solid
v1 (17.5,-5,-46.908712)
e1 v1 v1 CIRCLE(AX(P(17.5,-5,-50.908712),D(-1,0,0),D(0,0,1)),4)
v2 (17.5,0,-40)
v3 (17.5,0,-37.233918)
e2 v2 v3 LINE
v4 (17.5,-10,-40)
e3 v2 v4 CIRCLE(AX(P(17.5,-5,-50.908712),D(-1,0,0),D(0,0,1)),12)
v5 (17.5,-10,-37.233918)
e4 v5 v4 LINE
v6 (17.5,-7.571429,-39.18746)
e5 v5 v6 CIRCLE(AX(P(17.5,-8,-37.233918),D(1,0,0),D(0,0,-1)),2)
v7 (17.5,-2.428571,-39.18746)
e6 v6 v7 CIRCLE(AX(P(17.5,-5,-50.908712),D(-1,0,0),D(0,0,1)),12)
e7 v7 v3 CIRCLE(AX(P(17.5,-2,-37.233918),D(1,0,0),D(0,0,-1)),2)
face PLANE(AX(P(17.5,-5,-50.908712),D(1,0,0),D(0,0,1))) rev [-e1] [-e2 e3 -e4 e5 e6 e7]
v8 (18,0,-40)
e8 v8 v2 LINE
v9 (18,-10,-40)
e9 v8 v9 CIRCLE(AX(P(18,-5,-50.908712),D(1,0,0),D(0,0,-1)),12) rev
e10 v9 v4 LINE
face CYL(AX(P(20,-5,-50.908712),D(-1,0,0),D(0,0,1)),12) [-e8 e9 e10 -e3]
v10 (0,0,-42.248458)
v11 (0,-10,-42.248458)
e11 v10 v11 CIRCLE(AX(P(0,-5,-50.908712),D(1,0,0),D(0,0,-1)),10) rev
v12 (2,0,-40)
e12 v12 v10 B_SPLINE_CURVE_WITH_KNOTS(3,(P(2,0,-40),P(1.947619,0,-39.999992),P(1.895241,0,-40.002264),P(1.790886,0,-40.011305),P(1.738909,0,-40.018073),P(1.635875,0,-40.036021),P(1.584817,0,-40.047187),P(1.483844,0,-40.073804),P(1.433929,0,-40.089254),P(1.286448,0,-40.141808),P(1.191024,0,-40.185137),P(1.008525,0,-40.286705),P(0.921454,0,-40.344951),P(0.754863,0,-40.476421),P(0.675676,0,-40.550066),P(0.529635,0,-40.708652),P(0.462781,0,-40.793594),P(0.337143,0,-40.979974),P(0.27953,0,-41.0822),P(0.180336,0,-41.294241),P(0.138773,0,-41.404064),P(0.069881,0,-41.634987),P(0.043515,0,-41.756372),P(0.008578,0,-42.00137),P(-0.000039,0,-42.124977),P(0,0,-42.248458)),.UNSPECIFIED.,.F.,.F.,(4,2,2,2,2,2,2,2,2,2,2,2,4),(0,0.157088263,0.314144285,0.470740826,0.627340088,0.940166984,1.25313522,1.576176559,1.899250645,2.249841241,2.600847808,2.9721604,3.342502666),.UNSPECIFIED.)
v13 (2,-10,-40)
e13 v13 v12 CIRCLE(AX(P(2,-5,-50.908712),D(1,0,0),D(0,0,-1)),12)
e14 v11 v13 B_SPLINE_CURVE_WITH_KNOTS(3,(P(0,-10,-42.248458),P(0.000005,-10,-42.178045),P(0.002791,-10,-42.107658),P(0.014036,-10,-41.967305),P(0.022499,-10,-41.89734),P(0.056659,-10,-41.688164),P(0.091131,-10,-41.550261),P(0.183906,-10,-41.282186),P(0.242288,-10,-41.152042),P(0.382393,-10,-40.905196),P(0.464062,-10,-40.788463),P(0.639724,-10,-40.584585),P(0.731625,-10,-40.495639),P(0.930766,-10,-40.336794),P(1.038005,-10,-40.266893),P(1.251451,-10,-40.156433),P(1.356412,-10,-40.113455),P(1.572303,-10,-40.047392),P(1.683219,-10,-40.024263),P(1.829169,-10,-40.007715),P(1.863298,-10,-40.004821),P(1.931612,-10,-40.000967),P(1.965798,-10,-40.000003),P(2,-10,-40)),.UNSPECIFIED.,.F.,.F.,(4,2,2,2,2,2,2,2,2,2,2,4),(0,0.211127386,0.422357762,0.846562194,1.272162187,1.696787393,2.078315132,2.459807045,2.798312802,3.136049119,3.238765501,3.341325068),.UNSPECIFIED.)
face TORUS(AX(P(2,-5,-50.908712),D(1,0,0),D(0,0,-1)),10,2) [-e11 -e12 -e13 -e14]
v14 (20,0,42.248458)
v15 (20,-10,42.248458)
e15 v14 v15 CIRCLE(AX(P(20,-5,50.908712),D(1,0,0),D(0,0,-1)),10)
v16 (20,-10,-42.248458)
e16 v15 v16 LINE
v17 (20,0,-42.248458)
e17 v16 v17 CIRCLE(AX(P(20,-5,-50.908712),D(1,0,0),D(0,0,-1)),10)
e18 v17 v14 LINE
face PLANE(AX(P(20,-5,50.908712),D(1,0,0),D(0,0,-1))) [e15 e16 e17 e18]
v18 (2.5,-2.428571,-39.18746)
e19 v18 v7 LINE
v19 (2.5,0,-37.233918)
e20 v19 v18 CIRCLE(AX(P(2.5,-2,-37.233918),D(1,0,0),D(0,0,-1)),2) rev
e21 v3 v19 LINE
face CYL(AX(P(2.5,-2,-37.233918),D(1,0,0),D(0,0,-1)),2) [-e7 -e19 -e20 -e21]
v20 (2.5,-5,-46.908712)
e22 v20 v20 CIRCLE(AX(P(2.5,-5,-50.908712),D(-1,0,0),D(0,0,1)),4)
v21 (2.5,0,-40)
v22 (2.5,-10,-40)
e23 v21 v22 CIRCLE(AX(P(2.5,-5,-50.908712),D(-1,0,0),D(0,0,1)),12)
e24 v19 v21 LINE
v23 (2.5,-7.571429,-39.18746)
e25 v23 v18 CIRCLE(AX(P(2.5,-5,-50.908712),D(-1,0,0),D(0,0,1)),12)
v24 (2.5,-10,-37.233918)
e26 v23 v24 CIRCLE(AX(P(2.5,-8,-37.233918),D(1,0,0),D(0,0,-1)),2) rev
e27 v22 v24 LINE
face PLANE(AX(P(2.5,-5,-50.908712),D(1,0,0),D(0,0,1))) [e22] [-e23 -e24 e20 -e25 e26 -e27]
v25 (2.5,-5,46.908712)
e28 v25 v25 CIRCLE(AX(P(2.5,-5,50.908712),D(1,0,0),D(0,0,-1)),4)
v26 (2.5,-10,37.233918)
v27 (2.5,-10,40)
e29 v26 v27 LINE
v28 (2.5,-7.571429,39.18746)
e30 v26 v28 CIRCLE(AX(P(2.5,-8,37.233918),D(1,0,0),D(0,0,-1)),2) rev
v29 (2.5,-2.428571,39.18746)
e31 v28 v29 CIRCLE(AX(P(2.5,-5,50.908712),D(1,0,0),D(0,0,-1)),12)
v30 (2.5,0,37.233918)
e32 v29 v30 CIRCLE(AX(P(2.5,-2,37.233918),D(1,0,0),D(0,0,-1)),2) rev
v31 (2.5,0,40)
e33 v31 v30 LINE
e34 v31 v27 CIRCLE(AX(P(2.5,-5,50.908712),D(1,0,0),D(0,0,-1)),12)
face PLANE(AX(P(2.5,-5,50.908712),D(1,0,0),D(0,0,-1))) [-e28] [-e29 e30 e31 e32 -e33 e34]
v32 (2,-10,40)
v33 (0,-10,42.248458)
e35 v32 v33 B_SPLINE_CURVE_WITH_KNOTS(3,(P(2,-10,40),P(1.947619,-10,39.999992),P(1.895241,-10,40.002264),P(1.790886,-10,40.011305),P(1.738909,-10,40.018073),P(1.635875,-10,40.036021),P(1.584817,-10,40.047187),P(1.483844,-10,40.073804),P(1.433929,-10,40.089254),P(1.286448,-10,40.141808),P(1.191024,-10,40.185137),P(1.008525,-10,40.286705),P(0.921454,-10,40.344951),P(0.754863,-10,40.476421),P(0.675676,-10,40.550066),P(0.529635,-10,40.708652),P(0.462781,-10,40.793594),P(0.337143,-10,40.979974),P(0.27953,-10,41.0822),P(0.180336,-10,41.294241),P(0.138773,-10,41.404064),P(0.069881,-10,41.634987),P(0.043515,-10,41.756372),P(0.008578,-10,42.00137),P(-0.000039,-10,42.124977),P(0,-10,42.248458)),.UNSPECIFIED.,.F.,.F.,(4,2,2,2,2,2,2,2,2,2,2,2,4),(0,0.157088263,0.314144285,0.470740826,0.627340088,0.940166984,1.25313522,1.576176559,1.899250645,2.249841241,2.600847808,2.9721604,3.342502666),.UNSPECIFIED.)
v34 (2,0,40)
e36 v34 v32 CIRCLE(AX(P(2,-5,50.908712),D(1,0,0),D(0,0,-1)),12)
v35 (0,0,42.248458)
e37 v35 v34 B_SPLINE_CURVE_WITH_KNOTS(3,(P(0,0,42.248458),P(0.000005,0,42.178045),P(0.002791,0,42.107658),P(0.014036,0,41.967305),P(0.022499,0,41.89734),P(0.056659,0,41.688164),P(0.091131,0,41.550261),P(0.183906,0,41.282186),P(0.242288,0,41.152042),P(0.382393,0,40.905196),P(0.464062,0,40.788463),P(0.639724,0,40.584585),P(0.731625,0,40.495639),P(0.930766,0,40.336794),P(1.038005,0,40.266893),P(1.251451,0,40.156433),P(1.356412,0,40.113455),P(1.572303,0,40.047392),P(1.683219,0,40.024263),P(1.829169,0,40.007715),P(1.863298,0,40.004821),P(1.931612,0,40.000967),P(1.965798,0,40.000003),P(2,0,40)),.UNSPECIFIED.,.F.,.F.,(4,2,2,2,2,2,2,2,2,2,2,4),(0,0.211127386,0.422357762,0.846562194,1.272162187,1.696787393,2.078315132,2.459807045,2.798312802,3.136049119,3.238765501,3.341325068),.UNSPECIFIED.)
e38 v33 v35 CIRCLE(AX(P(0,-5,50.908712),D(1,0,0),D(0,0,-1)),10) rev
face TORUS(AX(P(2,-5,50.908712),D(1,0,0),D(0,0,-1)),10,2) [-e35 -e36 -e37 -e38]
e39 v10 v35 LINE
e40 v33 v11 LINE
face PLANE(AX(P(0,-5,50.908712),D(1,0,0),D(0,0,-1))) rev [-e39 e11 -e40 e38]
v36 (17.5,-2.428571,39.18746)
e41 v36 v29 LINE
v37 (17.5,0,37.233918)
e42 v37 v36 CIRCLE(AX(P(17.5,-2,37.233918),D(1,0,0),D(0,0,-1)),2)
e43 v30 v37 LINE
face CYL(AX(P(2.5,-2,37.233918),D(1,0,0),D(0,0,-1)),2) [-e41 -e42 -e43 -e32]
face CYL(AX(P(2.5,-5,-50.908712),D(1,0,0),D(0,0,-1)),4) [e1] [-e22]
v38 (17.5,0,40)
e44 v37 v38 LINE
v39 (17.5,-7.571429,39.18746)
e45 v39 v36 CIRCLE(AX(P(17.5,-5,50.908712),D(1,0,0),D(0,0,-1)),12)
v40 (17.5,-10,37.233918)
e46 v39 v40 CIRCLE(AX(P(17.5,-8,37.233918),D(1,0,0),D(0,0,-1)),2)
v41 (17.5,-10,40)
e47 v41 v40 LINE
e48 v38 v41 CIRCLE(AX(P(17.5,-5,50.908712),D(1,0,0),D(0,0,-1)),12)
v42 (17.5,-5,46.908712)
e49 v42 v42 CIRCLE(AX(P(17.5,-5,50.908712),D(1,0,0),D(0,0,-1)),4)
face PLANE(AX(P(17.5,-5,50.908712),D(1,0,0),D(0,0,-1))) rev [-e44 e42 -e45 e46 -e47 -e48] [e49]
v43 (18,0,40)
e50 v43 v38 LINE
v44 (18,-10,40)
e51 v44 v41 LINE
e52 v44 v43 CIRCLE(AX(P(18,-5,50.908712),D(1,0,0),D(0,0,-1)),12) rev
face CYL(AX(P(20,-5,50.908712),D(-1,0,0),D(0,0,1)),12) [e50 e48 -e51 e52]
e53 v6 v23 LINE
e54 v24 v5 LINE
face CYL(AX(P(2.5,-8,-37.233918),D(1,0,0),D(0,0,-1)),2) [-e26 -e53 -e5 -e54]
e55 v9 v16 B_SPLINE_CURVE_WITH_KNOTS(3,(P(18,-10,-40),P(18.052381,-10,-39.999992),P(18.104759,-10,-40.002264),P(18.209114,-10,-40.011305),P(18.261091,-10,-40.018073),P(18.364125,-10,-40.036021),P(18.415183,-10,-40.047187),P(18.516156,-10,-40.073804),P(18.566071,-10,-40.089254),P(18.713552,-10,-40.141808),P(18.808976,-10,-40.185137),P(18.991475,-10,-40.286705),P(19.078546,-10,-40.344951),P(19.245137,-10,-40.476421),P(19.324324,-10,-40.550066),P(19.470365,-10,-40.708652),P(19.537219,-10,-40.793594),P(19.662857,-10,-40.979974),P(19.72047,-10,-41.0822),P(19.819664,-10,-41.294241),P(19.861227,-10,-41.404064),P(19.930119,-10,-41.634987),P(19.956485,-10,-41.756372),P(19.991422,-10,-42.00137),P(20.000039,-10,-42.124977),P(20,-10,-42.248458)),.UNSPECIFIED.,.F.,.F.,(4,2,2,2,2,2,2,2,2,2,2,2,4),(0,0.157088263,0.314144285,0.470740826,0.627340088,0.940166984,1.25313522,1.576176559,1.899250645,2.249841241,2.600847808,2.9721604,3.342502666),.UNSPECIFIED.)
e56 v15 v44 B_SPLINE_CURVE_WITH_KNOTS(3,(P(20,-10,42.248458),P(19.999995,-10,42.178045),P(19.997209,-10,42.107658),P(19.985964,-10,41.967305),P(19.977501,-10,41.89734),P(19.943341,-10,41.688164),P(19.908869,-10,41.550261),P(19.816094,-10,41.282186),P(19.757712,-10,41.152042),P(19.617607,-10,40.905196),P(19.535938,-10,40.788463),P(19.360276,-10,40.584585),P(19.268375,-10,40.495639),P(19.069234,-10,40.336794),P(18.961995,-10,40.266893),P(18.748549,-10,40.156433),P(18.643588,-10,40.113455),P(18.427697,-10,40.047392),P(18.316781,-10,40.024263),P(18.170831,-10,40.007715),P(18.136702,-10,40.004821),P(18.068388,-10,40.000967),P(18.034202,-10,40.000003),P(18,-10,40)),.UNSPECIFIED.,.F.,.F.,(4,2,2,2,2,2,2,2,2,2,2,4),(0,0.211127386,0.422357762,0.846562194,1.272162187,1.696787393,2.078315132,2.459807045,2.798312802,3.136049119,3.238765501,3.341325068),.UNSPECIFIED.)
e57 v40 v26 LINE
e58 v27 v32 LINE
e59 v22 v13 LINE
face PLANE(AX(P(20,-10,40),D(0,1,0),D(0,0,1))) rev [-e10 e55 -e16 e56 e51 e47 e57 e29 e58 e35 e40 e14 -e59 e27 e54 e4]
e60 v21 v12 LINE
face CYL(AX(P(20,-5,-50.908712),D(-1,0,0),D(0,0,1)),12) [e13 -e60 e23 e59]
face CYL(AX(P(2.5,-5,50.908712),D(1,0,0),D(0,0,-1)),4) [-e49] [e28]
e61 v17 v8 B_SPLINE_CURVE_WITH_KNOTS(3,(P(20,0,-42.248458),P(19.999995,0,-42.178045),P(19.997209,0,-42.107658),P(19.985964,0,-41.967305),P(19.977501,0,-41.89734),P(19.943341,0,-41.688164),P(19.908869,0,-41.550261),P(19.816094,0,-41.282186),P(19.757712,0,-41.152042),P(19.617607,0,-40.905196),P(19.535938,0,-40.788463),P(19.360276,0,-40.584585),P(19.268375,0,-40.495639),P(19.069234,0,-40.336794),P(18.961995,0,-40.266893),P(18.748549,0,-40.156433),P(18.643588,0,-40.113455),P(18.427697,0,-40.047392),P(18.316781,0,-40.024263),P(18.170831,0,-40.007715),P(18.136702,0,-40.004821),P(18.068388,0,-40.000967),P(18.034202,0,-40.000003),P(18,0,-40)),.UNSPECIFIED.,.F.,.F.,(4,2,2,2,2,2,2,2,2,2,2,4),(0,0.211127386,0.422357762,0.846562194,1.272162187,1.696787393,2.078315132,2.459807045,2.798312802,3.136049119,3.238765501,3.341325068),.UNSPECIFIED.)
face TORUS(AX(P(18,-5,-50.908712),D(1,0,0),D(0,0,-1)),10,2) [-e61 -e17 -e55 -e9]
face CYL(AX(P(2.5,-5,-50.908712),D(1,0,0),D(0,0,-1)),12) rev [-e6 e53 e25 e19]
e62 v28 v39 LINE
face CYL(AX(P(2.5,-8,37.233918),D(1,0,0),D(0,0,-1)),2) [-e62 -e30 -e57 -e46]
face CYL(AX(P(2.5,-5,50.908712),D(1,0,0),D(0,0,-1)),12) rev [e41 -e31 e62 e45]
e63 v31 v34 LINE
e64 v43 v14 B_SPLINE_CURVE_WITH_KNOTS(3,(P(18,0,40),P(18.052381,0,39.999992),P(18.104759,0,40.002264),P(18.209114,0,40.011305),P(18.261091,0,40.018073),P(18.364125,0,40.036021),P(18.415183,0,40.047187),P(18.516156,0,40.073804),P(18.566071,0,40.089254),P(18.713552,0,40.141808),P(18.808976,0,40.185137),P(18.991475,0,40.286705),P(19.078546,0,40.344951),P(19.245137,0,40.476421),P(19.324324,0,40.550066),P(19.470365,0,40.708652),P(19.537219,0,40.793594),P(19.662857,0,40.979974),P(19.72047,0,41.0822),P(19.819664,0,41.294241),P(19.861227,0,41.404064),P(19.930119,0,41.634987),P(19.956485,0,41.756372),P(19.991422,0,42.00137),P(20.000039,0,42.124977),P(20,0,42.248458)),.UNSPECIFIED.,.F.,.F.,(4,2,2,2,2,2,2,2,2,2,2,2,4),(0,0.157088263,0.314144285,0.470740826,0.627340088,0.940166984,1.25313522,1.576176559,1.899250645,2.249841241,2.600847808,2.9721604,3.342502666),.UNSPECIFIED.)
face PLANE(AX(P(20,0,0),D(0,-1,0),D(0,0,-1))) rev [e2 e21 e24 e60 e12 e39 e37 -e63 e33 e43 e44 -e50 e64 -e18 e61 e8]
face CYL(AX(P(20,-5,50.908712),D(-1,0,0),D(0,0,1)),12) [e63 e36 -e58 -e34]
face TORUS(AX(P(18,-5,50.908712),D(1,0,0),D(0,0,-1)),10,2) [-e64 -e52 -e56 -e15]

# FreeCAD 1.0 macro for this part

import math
import FreeCAD as App
import Part
import Sketcher
from FreeCAD import Vector
Q = App.Units.Quantity


def edges_at(feature, points):
    """Names of the edges that pass closest to the given points."""
    edges = feature.Shape.Edges
    near = lambda p: min(range(len(edges)), key=lambda i: edges[i].distToShape(Part.Vertex(*p))[0])
    return sorted({f"Edge{near(p) + 1}" for p in points})

doc = App.newDocument("Part")
body = doc.addObject("PartDesign::Body", "Body")

# Sketch on YZ plane
sketch1 = doc.addObject("Sketcher::SketchObject", "Sketch")
body.addObject(sketch1)
sketch1.AttachmentSupport = (doc.YZ_Plane, [""])
sketch1.MapMode = "FlatFace"
sketch1.addGeometry([
    Part.LineSegment(Vector(0, 0, 0), Vector(0, 40, 0)),
    Part.ArcOfCircle(Part.Circle(Vector(-5, 50.908712, 0), Vector(0, 0, 1), 12), math.radians(-65.375682), math.radians(245.375682)),
    Part.LineSegment(Vector(-10, 40, 0), Vector(-10, 0, 0)),
    Part.LineSegment(Vector(-10, 0, 0), Vector(0, 0, 0)),
], False)
sketch1.addConstraint([
    Sketcher.Constraint("Coincident", 0, 2, 1, 1),
    Sketcher.Constraint("Coincident", 1, 2, 2, 1),
    Sketcher.Constraint("Coincident", 2, 2, 3, 1),
    Sketcher.Constraint("Coincident", 3, 2, 0, 1),
    Sketcher.Constraint("Vertical", 0),
    Sketcher.Constraint("Vertical", 2),
    Sketcher.Constraint("Horizontal", 3),
    Sketcher.Constraint("Coincident", 3, 2, -1, 1),
    Sketcher.Constraint("Horizontal", 0, 2, 1, 2),
    Sketcher.Constraint("Radius", 1, Q("12 mm")),
    Sketcher.Constraint("DistanceX", 3, 1, 3, 2, Q("10 mm")),
    Sketcher.Constraint("DistanceY", 0, 1, 0, 2, Q("40 mm")),
])
pad1 = doc.addObject("PartDesign::Pad", "Pad")
body.addObject(pad1)
pad1.Profile = sketch1
pad1.Length = 20

# Sketch on YZ plane
sketch2 = doc.addObject("Sketcher::SketchObject", "Sketch001")
body.addObject(sketch2)
sketch2.AttachmentSupport = (doc.YZ_Plane, [""])
sketch2.MapMode = "FlatFace"
sketch2.AttachmentOffset = App.Placement(Vector(0, 0, 17.5), App.Rotation())
sketch2.addGeometry([
    Part.Circle(Vector(-5, 50.908712, 0), Vector(0, 0, 1), 12),
    Part.Circle(Vector(-5, 50.908712, 0), Vector(0, 0, 1), 4),
], False)
sketch2.addConstraint([
    Sketcher.Constraint("Coincident", 1, 3, 0, 3),
    Sketcher.Constraint("Diameter", 0, Q("24 mm")),
    Sketcher.Constraint("Diameter", 1, Q("8 mm")),
    Sketcher.Constraint("DistanceX", 0, 3, -1, 1, Q("5 mm")),
    Sketcher.Constraint("DistanceY", -1, 1, 0, 3, Q("50.908712 mm")),
])
pocket1 = doc.addObject("PartDesign::Pocket", "Pocket")
body.addObject(pocket1)
pocket1.Profile = sketch2
pocket1.Length = 15
doc.recompute()

fillet = doc.addObject("PartDesign::Fillet", "Fillet")
body.addObject(fillet)
fillet.Base = (pocket1, edges_at(pocket1, [
    (0, -5, 62.909),
    (20, -5, 62.909),
    (10, -10, 40),
    (10, 0, 40),
]))
fillet.Radius = 2
doc.recompute()

mirrored = doc.addObject("PartDesign::Mirrored", "Mirrored")
body.addObject(mirrored)
mirrored.Originals = [pad1, pocket1]
mirrored.MirrorPlane = (doc.XY_Plane, [""])
body.Tip = mirrored
doc.recompute()

fillet2 = doc.addObject("PartDesign::Fillet", "Fillet001")
body.addObject(fillet2)
fillet2.Base = (mirrored, edges_at(mirrored, [
    (0, -5, -62.909),
    (20, -5, -62.909),
    (10, -10, -40),
    (10, 0, -40),
]))
fillet2.Radius = 2

doc.recompute()
